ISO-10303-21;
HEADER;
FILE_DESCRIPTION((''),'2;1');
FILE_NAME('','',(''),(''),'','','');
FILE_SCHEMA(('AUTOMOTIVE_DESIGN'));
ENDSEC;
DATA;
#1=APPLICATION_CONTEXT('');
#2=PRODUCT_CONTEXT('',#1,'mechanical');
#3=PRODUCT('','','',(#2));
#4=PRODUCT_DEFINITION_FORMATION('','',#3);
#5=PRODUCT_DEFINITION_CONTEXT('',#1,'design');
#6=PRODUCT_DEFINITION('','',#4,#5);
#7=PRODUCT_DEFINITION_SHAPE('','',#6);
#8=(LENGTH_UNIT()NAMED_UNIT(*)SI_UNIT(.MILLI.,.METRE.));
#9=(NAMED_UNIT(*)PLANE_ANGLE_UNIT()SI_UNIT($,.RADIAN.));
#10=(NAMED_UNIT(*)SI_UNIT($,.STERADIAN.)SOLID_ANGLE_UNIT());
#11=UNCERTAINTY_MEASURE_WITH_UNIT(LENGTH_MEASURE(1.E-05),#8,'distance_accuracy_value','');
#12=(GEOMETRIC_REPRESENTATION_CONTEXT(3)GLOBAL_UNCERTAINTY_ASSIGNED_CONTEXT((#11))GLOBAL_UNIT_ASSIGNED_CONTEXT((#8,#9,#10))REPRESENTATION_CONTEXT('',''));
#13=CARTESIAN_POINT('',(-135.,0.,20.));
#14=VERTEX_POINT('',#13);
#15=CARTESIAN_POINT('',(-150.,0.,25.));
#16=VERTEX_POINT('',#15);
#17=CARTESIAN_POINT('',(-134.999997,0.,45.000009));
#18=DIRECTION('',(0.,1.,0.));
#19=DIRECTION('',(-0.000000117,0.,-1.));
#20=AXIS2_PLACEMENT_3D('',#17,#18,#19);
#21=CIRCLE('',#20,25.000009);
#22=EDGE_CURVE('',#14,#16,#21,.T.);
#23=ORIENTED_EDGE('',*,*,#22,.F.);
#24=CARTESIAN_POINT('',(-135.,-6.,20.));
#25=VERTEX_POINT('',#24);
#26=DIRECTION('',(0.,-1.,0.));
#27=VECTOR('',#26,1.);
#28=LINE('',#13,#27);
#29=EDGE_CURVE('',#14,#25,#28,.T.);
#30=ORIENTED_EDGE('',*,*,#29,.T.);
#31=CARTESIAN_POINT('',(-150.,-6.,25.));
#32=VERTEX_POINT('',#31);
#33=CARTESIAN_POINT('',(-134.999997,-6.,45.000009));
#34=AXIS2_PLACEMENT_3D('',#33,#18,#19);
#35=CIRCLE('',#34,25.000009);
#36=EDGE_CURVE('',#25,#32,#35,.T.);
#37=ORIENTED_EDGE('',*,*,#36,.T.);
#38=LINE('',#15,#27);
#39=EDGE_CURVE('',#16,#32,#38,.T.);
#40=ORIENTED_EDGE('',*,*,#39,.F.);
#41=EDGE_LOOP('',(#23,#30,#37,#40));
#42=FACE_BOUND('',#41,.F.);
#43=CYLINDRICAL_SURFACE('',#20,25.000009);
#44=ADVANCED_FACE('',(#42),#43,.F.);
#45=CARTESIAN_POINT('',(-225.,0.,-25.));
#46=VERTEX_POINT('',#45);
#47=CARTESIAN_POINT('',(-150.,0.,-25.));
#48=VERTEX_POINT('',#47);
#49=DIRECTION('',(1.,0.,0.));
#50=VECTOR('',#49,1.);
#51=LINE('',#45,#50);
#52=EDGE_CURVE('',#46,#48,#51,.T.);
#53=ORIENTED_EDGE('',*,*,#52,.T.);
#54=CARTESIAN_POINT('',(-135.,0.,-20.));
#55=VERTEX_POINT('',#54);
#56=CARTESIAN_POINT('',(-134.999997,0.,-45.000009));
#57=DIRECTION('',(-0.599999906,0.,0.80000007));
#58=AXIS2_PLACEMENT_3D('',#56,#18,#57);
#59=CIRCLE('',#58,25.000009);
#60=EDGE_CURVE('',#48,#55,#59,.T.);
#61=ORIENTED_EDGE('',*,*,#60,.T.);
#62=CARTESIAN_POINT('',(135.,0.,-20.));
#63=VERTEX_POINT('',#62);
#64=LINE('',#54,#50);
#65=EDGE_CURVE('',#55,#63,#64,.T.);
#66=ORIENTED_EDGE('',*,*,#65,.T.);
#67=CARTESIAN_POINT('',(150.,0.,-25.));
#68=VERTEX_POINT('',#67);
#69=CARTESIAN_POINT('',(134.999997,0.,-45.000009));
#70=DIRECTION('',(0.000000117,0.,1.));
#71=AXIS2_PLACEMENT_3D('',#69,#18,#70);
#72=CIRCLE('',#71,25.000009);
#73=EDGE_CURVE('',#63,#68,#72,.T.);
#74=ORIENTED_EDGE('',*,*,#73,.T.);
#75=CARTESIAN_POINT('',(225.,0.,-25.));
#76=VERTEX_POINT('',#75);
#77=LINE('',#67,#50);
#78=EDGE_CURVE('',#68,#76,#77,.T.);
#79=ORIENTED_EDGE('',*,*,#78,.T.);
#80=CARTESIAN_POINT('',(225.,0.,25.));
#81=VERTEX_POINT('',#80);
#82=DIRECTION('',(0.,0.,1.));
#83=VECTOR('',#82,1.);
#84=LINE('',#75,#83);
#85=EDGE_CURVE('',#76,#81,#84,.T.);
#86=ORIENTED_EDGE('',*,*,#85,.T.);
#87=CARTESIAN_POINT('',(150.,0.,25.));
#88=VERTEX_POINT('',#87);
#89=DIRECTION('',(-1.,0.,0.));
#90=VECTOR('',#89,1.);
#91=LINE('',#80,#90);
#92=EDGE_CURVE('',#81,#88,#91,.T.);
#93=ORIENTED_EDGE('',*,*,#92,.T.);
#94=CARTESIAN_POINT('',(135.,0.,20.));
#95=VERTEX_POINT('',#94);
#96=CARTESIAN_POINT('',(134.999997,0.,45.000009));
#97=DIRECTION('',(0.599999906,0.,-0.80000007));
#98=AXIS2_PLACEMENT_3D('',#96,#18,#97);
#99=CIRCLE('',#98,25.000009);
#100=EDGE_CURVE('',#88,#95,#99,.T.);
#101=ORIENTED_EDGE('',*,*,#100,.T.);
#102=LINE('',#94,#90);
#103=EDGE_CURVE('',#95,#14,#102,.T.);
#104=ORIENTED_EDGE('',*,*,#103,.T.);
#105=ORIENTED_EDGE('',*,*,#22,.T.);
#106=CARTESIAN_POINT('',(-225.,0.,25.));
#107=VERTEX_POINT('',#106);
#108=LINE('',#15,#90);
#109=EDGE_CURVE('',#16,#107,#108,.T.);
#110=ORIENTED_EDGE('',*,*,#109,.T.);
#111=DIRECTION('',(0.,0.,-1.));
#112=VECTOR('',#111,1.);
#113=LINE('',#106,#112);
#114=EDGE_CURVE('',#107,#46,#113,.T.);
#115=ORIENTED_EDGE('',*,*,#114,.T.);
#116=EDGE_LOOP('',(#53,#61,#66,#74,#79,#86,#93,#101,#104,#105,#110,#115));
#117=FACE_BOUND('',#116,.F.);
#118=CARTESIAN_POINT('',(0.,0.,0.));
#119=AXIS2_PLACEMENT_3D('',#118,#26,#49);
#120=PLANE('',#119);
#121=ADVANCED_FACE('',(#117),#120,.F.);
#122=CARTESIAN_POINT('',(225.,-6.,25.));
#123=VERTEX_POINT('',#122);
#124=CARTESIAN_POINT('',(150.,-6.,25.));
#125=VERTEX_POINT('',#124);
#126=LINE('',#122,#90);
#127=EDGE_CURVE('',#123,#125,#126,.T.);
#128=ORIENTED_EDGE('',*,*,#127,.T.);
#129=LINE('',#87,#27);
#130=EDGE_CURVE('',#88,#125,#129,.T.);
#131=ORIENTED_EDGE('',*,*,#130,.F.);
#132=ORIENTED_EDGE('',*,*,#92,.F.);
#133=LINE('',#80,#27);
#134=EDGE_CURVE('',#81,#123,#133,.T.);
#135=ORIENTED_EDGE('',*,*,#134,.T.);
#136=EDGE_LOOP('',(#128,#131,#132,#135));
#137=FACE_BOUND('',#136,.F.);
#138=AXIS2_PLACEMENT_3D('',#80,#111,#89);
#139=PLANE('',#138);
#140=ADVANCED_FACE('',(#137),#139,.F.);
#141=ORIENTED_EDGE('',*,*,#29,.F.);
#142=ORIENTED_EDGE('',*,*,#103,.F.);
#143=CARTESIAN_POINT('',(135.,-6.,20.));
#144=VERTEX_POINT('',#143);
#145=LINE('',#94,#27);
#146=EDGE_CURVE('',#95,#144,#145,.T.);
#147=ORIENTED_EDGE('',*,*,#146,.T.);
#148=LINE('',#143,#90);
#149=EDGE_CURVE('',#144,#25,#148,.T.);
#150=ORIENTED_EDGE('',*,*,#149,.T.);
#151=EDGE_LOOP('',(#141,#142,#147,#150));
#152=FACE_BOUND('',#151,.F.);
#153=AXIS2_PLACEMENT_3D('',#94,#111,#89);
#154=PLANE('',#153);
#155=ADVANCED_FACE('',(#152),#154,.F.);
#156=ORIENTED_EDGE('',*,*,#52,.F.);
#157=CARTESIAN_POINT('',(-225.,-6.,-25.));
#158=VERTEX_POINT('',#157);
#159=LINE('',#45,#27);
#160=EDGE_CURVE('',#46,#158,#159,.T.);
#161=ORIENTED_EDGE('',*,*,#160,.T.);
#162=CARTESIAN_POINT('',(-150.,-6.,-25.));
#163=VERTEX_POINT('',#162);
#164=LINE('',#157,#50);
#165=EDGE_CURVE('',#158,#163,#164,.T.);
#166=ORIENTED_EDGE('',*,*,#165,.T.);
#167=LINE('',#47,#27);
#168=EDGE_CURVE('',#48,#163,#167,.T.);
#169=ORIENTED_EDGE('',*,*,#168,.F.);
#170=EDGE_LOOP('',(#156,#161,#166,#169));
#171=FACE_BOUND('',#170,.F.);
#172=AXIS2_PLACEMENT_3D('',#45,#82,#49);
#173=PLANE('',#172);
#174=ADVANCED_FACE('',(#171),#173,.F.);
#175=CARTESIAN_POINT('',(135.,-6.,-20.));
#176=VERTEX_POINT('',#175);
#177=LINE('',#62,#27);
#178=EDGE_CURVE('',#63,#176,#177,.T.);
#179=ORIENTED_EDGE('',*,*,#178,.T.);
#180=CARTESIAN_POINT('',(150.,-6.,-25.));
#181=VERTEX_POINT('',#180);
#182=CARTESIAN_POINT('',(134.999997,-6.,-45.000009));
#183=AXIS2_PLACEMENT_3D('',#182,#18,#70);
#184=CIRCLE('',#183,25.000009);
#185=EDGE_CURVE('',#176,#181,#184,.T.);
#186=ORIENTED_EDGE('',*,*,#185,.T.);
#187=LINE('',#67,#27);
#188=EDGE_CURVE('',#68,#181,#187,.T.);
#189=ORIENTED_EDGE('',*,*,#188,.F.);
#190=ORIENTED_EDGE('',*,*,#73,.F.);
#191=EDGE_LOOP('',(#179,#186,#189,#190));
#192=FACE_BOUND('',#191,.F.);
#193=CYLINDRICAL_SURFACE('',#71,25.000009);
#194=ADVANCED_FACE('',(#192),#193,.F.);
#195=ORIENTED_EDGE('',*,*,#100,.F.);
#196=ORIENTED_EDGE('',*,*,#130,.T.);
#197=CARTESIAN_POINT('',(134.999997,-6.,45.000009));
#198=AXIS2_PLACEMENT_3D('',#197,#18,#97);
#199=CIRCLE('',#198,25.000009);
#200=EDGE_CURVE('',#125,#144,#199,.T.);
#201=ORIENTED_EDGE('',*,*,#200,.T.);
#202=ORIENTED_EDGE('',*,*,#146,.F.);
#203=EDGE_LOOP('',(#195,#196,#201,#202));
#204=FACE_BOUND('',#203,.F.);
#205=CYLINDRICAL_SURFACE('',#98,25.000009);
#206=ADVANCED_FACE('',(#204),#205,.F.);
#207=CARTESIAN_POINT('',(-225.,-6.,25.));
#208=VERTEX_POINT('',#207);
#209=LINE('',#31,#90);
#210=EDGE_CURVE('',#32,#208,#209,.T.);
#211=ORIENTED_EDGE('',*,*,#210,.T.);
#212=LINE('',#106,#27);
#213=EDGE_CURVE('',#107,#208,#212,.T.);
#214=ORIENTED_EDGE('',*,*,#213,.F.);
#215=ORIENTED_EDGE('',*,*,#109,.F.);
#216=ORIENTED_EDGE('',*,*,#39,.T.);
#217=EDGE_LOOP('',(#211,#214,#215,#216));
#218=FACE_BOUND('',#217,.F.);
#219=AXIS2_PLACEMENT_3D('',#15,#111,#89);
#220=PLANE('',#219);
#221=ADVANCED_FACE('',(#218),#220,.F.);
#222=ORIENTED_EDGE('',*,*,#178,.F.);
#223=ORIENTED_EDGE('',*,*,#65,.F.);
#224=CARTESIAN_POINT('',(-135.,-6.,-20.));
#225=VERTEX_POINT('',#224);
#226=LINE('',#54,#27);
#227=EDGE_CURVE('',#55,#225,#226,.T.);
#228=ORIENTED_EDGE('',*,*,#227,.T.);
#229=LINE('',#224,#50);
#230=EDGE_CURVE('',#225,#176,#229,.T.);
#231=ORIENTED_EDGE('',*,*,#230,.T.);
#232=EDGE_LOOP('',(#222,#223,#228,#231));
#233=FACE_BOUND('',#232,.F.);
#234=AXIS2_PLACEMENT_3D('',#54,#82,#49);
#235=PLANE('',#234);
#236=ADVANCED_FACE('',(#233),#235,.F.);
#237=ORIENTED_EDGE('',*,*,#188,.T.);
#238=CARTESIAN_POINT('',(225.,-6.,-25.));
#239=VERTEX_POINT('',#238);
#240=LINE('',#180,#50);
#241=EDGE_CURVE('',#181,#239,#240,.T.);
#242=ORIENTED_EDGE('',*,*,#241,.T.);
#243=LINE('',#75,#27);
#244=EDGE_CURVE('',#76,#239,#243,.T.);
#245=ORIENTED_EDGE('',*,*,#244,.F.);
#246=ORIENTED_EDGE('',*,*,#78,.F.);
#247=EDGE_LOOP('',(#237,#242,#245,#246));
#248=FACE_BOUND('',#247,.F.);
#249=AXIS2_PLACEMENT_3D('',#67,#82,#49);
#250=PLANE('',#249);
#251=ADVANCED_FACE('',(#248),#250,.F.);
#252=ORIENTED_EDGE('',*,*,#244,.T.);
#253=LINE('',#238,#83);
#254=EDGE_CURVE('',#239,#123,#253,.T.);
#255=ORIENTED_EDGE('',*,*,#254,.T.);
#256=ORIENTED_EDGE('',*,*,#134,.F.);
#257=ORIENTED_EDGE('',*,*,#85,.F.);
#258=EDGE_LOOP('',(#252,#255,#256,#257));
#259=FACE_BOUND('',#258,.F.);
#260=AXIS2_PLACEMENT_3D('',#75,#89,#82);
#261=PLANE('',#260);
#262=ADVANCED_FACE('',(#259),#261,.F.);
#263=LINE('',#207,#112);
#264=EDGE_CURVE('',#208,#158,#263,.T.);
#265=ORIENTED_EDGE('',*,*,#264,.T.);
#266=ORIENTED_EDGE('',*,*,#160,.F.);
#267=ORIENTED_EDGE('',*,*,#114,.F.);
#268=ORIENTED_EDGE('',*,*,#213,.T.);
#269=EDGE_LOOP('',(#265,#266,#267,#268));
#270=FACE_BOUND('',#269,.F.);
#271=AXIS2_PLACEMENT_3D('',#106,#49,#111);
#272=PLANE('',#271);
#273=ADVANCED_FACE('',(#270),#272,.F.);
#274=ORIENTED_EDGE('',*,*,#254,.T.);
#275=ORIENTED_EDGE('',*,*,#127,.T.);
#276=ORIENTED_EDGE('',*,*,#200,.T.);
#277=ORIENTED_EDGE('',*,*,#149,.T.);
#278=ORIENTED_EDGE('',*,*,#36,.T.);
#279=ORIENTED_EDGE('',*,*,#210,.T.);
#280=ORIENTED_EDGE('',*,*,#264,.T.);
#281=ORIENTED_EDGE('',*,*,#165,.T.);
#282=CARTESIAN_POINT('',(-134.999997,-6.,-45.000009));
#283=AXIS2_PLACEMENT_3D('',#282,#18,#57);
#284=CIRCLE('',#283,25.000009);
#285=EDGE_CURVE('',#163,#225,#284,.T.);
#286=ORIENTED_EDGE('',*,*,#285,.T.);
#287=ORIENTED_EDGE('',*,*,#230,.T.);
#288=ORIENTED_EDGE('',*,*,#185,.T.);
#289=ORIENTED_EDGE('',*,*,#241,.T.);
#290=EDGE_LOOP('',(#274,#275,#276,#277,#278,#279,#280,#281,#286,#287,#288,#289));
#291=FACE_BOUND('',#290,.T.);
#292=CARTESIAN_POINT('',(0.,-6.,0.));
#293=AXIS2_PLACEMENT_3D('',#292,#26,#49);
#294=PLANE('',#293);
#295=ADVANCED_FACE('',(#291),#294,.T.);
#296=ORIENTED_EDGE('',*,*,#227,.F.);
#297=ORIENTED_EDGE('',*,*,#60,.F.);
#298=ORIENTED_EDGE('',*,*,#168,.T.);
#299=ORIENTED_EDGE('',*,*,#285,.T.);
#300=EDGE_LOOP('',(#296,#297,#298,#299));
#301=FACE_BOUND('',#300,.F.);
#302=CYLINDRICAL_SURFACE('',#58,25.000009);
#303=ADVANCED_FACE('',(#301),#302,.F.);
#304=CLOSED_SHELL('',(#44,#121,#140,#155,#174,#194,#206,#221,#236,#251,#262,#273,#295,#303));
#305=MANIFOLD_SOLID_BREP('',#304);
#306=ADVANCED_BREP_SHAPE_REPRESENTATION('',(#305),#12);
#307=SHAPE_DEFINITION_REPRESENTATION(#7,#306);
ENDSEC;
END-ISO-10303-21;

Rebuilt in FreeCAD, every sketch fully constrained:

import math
import FreeCAD as App
import Part
import Sketcher

V = App.Vector
Q = App.Units.Quantity

doc = App.newDocument("Part")
body = doc.addObject("PartDesign::Body", "Body")

# Sketch on XZ plane
sketch1 = doc.addObject("Sketcher::SketchObject", "Sketch")
body.addObject(sketch1)
sketch1.AttachmentSupport = (doc.XZ_Plane, [""])
sketch1.MapMode = "FlatFace"
sketch1.addGeometry([
    Part.LineSegment(V(135, 20, 0), V(-135, 20, 0)),  # 0
    Part.ArcOfCircle(Part.Circle(V(-134.999997, 45.000009, 0), V(0, 0, 1), 25.000009), math.radians(-126.869891), math.radians(-90.000007)),  # 1
    Part.LineSegment(V(-150, 25, 0), V(-225, 25, 0)),  # 2
    Part.LineSegment(V(-225, 25, 0), V(-225, -25, 0)),  # 3
    Part.LineSegment(V(-225, -25, 0), V(-150, -25, 0)),  # 4
    Part.ArcOfCircle(Part.Circle(V(-134.999997, -45.000009, 0), V(0, 0, 1), 25.000009), math.radians(90.000007), math.radians(126.869891)),  # 5
    Part.LineSegment(V(-135, -20, 0), V(135, -20, 0)),  # 6
    Part.ArcOfCircle(Part.Circle(V(134.999997, -45.000009, 0), V(0, 0, 1), 25.000009), math.radians(53.130109), math.radians(89.999993)),  # 7
    Part.LineSegment(V(150, -25, 0), V(225, -25, 0)),  # 8
    Part.LineSegment(V(225, -25, 0), V(225, 25, 0)),  # 9
    Part.LineSegment(V(225, 25, 0), V(150, 25, 0)),  # 10
    Part.ArcOfCircle(Part.Circle(V(134.999997, 45.000009, 0), V(0, 0, 1), 25.000009), math.radians(-89.999993), math.radians(-53.130109)),  # 11
], False)
sketch1.addConstraint([
    Sketcher.Constraint("Tangent", 0, 2, 1, 2),
    Sketcher.Constraint("Coincident", 1, 1, 2, 1),
    Sketcher.Constraint("Coincident", 2, 2, 3, 1),
    Sketcher.Constraint("Coincident", 3, 2, 4, 1),
    Sketcher.Constraint("Coincident", 4, 2, 5, 2),
    Sketcher.Constraint("Tangent", 5, 1, 6, 1),
    Sketcher.Constraint("Tangent", 6, 2, 7, 2),
    Sketcher.Constraint("Coincident", 7, 1, 8, 1),
    Sketcher.Constraint("Coincident", 8, 2, 9, 1),
    Sketcher.Constraint("Coincident", 9, 2, 10, 1),
    Sketcher.Constraint("Coincident", 10, 2, 11, 2),
    Sketcher.Constraint("Tangent", 11, 1, 0, 1),
    Sketcher.Constraint("Horizontal", 0),
    Sketcher.Constraint("Horizontal", 2),
    Sketcher.Constraint("Vertical", 3),
    Sketcher.Constraint("Horizontal", 4),
    Sketcher.Constraint("Horizontal", 6),
    Sketcher.Constraint("Horizontal", 8),
    Sketcher.Constraint("Vertical", 9),
    Sketcher.Constraint("Horizontal", 10),
    Sketcher.Constraint("Equal", 1, 5),
    Sketcher.Constraint("Equal", 5, 7),
    Sketcher.Constraint("Equal", 7, 11),
    Sketcher.Constraint("Symmetric", 1, 3, 7, 3, -1, 1),
    Sketcher.Constraint("Symmetric", 2, 2, 8, 2, -1, 1),
    Sketcher.Constraint("Symmetric", 4, 2, 10, 2, -1, 1),
    Sketcher.Constraint("Symmetric", 4, 2, 7, 1, -2),
    Sketcher.Constraint("DistanceX", 0, 2, 0, 1, Q("270 mm")),
    Sketcher.Constraint("DistanceX", 2, 2, 2, 1, Q("75 mm")),
    Sketcher.Constraint("DistanceY", 3, 2, 3, 1, Q("50 mm")),
    Sketcher.Constraint("DistanceY", -1, 1, 0, 2, Q("20 mm")),
    Sketcher.Constraint("DistanceX", 1, 1, -1, 1, Q("150 mm")),
])
pad1 = doc.addObject("PartDesign::Pad", "Pad")
body.addObject(pad1)
pad1.Profile = sketch1
pad1.Length = 6

doc.recompute()
